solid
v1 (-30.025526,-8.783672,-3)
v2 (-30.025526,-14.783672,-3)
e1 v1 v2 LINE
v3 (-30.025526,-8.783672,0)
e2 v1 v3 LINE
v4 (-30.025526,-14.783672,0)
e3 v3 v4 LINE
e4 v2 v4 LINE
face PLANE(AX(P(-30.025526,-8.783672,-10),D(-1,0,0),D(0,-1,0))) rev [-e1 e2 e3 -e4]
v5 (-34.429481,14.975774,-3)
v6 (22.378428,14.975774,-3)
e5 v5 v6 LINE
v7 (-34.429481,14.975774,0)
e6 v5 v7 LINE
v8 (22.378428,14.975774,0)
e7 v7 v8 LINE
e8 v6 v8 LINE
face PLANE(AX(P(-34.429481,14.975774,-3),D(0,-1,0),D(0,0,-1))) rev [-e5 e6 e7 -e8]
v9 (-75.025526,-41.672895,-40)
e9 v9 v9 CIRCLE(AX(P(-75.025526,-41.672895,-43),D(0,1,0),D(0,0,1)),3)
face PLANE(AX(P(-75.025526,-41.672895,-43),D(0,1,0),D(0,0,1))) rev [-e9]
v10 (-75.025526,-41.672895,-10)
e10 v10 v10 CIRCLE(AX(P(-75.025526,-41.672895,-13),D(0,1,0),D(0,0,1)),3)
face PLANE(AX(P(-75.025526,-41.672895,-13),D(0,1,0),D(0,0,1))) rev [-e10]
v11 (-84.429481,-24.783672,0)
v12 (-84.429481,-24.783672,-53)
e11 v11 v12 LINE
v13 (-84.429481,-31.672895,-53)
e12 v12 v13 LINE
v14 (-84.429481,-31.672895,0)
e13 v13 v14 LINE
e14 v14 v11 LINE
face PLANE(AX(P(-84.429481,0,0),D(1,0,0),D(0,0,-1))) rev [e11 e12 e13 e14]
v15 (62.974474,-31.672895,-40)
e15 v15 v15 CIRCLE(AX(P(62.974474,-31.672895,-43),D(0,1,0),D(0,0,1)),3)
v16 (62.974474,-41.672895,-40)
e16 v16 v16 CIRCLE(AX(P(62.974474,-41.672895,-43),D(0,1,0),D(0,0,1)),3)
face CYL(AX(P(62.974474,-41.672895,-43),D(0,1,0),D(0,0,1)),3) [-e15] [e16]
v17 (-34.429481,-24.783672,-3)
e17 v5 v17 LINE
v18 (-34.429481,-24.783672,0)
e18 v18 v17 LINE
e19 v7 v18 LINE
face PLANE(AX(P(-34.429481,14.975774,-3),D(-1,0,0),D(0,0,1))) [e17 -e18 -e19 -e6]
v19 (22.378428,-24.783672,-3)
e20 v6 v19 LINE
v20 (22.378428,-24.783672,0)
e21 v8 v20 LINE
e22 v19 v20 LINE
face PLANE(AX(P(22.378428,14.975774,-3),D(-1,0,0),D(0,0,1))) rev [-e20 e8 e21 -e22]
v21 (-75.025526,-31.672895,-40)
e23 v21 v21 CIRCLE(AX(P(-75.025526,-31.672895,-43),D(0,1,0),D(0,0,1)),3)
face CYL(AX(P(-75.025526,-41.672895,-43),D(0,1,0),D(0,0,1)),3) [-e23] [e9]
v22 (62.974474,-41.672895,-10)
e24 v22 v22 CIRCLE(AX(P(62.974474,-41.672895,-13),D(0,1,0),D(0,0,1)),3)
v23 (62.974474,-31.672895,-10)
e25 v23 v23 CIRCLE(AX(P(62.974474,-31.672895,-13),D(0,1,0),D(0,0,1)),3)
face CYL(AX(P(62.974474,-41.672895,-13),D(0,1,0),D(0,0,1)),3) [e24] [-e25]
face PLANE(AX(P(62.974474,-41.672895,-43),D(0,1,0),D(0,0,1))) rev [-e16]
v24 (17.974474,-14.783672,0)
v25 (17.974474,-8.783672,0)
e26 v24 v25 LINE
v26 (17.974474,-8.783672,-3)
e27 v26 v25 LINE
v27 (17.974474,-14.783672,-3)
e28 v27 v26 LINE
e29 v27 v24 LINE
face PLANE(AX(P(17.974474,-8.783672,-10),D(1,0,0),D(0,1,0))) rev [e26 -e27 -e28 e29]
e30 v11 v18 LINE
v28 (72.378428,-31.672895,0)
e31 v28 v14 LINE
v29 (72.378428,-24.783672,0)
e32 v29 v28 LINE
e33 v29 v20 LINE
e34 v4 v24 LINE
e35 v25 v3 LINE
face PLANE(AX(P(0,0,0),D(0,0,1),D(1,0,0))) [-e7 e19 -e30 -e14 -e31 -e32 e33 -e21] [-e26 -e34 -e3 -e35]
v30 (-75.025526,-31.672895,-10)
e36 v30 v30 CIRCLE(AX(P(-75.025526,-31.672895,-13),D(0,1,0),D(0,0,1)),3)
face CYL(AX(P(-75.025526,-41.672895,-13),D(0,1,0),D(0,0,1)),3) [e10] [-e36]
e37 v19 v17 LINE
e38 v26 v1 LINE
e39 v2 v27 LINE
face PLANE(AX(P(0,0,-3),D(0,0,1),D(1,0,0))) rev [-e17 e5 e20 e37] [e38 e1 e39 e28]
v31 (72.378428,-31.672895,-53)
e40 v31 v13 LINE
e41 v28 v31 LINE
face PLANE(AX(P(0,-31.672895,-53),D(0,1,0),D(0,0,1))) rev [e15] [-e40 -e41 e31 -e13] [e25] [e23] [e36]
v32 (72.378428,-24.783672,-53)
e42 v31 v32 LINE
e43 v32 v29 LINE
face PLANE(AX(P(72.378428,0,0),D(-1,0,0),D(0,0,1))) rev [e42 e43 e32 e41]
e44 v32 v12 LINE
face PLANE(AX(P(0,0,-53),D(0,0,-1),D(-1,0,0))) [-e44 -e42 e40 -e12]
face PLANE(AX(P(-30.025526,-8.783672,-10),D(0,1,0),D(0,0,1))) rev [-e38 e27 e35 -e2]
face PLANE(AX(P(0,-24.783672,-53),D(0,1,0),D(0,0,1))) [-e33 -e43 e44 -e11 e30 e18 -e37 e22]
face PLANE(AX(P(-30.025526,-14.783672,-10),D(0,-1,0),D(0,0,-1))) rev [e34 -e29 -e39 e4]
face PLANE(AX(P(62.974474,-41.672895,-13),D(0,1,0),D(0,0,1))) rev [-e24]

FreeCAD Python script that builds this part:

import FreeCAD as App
import Part
import Sketcher


def add_polygon(sketch, points):
    """Adds a closed chain of lines whose ends are joined by coincident constraints."""
    first, n = sketch.GeometryCount, len(points)
    for a, b in zip(points, points[1:] + points[:1]):
        sketch.addGeometry(Part.LineSegment(App.Vector(*a, 0), App.Vector(*b, 0)), False)
    for i in range(n):
        sketch.addConstraint(Sketcher.Constraint("Coincident", first + i, 2, first + (i + 1) % n, 1))

doc = App.newDocument("Part")
body = doc.addObject("PartDesign::Body", "Body")

# Sketch on XY plane
sketch1 = body.newObject("Sketcher::SketchObject", "Sketch")
sketch1.AttachmentSupport = (doc.getObject("XY_Plane"), [""])
sketch1.MapMode = "FlatFace"
add_polygon(sketch1, [(-34, 15), (-34, -39), (22, -39), (22, 15)])  # lines 0-3
sketch1.addConstraint([
    Sketcher.Constraint("Vertical", 0),
    Sketcher.Constraint("Horizontal", 1),
    Sketcher.Constraint("Vertical", 2),
    Sketcher.Constraint("Horizontal", 3),
    Sketcher.Constraint("DistanceX", 1, 1, 1, 2, 56.807909),
    Sketcher.Constraint("DistanceY", 0, 2, -1, 1, 39.290498),
    Sketcher.Constraint("DistanceY", 0, 2, 0, 1, 54.266272),
    Sketcher.Constraint("DistanceX", 0, 2, -1, 1, 34.429481),
])
pad1 = body.newObject("PartDesign::Pad", "Pad")
pad1.Profile = sketch1
pad1.Length = 3
pad1.Reversed = True

# Sketch on XY plane
sketch2 = body.newObject("Sketcher::SketchObject", "Sketch001")
sketch2.AttachmentSupport = (doc.getObject("XY_Plane"), [""])
sketch2.MapMode = "FlatFace"
sketch2.addGeometry([
    Part.Circle(App.Vector(-26.1, 5.3, 0), App.Vector(0, 0, 1), 4.2),  # 0
    Part.Circle(App.Vector(-6.5, 5.3, 0), App.Vector(0, 0, 1), 4.2),  # 1
    Part.Circle(App.Vector(13.1, 5.3, 0), App.Vector(0, 0, 1), 4.2),  # 2
    Part.Circle(App.Vector(-26.1, -29.6, 0), App.Vector(0, 0, 1), 4.2),  # 3
    Part.Circle(App.Vector(-6.5, -29.6, 0), App.Vector(0, 0, 1), 4.2),  # 4
    Part.Circle(App.Vector(13.1, -29.6, 0), App.Vector(0, 0, 1), 4.2),  # 5
], False)
sketch2.addConstraint([
    Sketcher.Constraint("Equal", 0, 1),
    Sketcher.Constraint("Equal", 1, 2),
    Sketcher.Constraint("Equal", 2, 3),
    Sketcher.Constraint("Equal", 3, 4),
    Sketcher.Constraint("Equal", 4, 5),
    Sketcher.Constraint("Horizontal", 0, 3, 1, 3),
    Sketcher.Constraint("Horizontal", 1, 3, 2, 3),
    Sketcher.Constraint("Horizontal", 3, 3, 4, 3),
    Sketcher.Constraint("Horizontal", 4, 3, 5, 3),
    Sketcher.Constraint("Vertical", 0, 3, 3, 3),
    Sketcher.Constraint("Vertical", 1, 3, 4, 3),
    Sketcher.Constraint("Vertical", 2, 3, 5, 3),
    Sketcher.Constraint("Diameter", 0, 8.5),
    Sketcher.Constraint("DistanceX", 0, 3, 1, 3, 19.6),
    Sketcher.Constraint("DistanceX", 1, 3, 2, 3, 19.6),
    Sketcher.Constraint("DistanceY", 3, 3, 0, 3, 34.85),
    Sketcher.Constraint("DistanceX", 0, 3, -1, 1, 26.141197),
    Sketcher.Constraint("DistanceY", -1, 1, 0, 3, 5.267083),
])
pad2 = body.newObject("PartDesign::Pad", "Pad001")
pad2.Profile = sketch2
pad2.Length = 12

# Sketch on XY plane
sketch3 = body.newObject("Sketcher::SketchObject", "Sketch002")
sketch3.AttachmentSupport = (doc.getObject("XY_Plane"), [""])
sketch3.MapMode = "FlatFace"
add_polygon(sketch3, [(-30, -9), (-30, -15), (18, -15), (18, -9)])  # lines 0-3
sketch3.addConstraint([
    Sketcher.Constraint("Vertical", 0),
    Sketcher.Constraint("Horizontal", 1),
    Sketcher.Constraint("Vertical", 2),
    Sketcher.Constraint("Horizontal", 3),
    Sketcher.Constraint("DistanceX", 1, 1, 1, 2, 48.0),
    Sketcher.Constraint("DistanceY", 0, 2, 0, 1, 6.0),
    Sketcher.Constraint("DistanceY", 0, 2, -1, 1, 14.783672),
    Sketcher.Constraint("DistanceX", 0, 2, -1, 1, 30.025526),
])
pocket1 = body.newObject("PartDesign::Pocket", "Pocket")
pocket1.Profile = sketch3
pocket1.Length = 10

# Sketch on XY plane
sketch4 = body.newObject("Sketcher::SketchObject", "Sketch003")
sketch4.AttachmentSupport = (doc.getObject("XY_Plane"), [""])
sketch4.MapMode = "FlatFace"
sketch4.AttachmentOffset = App.Placement(App.Vector(0, 0, -3), App.Rotation())
add_polygon(sketch4, [(22, -25), (22, -32), (-34, -32), (-34, -25)])  # lines 0-3
sketch4.addConstraint([
    Sketcher.Constraint("Vertical", 0),
    Sketcher.Constraint("Horizontal", 1),
    Sketcher.Constraint("Vertical", 2),
    Sketcher.Constraint("Horizontal", 3),
    Sketcher.Constraint("DistanceX", 1, 2, 1, 1, 56.807909),
    Sketcher.Constraint("DistanceY", 0, 2, 0, 1, 6.889223),
    Sketcher.Constraint("DistanceX", 1, 2, -1, 1, 34.429481),
    Sketcher.Constraint("DistanceY", 2, 2, -1, 1, 24.783672),
])
pad3 = body.newObject("PartDesign::Pad", "Pad002")
pad3.Profile = sketch4
pad3.Length = 50
pad3.Reversed = True

# Sketch on YZ plane
sketch5 = body.newObject("Sketcher::SketchObject", "Sketch004")
sketch5.AttachmentSupport = (doc.getObject("YZ_Plane"), [""])
sketch5.MapMode = "FlatFace"
sketch5.AttachmentOffset = App.Placement(App.Vector(0, 0, 22.378428), App.Rotation())
add_polygon(sketch5, [(-25, 0), (-32, 0), (-32, -53), (-25, -53)])  # lines 0-3
sketch5.addConstraint([
    Sketcher.Constraint("Horizontal", 0),
    Sketcher.Constraint("Vertical", 1),
    Sketcher.Constraint("Horizontal", 2),
    Sketcher.Constraint("Vertical", 3),
    Sketcher.Constraint("PointOnObject", 0, 2, -1),
    Sketcher.Constraint("DistanceY", 1, 2, 1, 1, 53.0),
    Sketcher.Constraint("DistanceX", 0, 2, 0, 1, 6.889223),
    Sketcher.Constraint("DistanceX", 2, 2, -1, 1, 24.783672),
])
pad4 = body.newObject("PartDesign::Pad", "Pad003")
pad4.Profile = sketch5
pad4.Length = 50

# Sketch on YZ plane
sketch6 = body.newObject("Sketcher::SketchObject", "Sketch005")
sketch6.AttachmentSupport = (doc.getObject("YZ_Plane"), [""])
sketch6.MapMode = "FlatFace"
sketch6.AttachmentOffset = App.Placement(App.Vector(0, 0, -34.429481), App.Rotation())
add_polygon(sketch6, [(-25, -53), (-32, -53), (-32, 0), (-25, 0)])  # lines 0-3
sketch6.addConstraint([
    Sketcher.Constraint("Horizontal", 0),
    Sketcher.Constraint("Vertical", 1),
    Sketcher.Constraint("Horizontal", 2),
    Sketcher.Constraint("Vertical", 3),
    Sketcher.Constraint("PointOnObject", 1, 2, -1),
    Sketcher.Constraint("DistanceY", 1, 1, 1, 2, 53.0),
    Sketcher.Constraint("DistanceX", 0, 2, 0, 1, 6.889223),
    Sketcher.Constraint("DistanceX", 2, 2, -1, 1, 24.783672),
])
pad5 = body.newObject("PartDesign::Pad", "Pad004")
pad5.Profile = sketch6
pad5.Length = 50
pad5.Reversed = True

# Sketch on XY plane
sketch7 = body.newObject("Sketcher::SketchObject", "Sketch006")
sketch7.AttachmentSupport = (doc.getObject("XY_Plane"), [""])
sketch7.MapMode = "FlatFace"
add_polygon(sketch7, [(-42, 17), (-42, -43), (26, -43), (26, 17)])  # lines 0-3
sketch7.addConstraint([
    Sketcher.Constraint("Vertical", 0),
    Sketcher.Constraint("Horizontal", 1),
    Sketcher.Constraint("Vertical", 2),
    Sketcher.Constraint("Horizontal", 3),
    Sketcher.Constraint("DistanceX", 1, 1, 1, 2, 68.867558),
    Sketcher.Constraint("DistanceY", 0, 2, 0, 1, 60.331861),
    Sketcher.Constraint("DistanceY", -1, 1, 2, 2, 17.135599),
    Sketcher.Constraint("DistanceX", -1, 1, 1, 2, 26.468321),
])
pocket2 = body.newObject("PartDesign::Pocket", "Pocket001")
pocket2.Profile = sketch7
pocket2.Length = 26
pocket2.Reversed = True

# Sketch on XZ plane
sketch8 = body.newObject("Sketcher::SketchObject", "Sketch007")
sketch8.AttachmentSupport = (doc.getObject("XZ_Plane"), [""])
sketch8.MapMode = "FlatFace"
sketch8.AttachmentOffset = App.Placement(App.Vector(0, 0, 31.672895), App.Rotation())
add_polygon(sketch8, [(-80, 13), (-80, -41), (50, -41), (50, 13)])  # lines 0-3
sketch8.addConstraint([
    Sketcher.Constraint("Vertical", 0),
    Sketcher.Constraint("Horizontal", 1),
    Sketcher.Constraint("Vertical", 2),
    Sketcher.Constraint("Horizontal", 3),
    Sketcher.Constraint("DistanceX", 1, 1, 1, 2, 129.878395),
    Sketcher.Constraint("DistanceY", 0, 2, 0, 1, 53.736095),
    Sketcher.Constraint("DistanceX", 0, 2, -1, 1, 79.742913),
    Sketcher.Constraint("DistanceY", 0, 2, -1, 1, 40.846137),
])
pocket3 = body.newObject("PartDesign::Pocket", "Pocket002")
pocket3.Profile = sketch8
pocket3.Length = 22
pocket3.Reversed = True

# Sketch on XZ plane
sketch9 = body.newObject("Sketcher::SketchObject", "Sketch008")
sketch9.AttachmentSupport = (doc.getObject("XZ_Plane"), [""])
sketch9.MapMode = "FlatFace"
sketch9.AttachmentOffset = App.Placement(App.Vector(0, 0, 31.672895), App.Rotation())
sketch9.addGeometry([
    Part.Circle(App.Vector(-75, -43, 0), App.Vector(0, 0, 1), 3),
    Part.Circle(App.Vector(-75, -13, 0), App.Vector(0, 0, 1), 3),
    Part.Circle(App.Vector(63, -13, 0), App.Vector(0, 0, 1), 3),
    Part.Circle(App.Vector(63, -43, 0), App.Vector(0, 0, 1), 3),
], False)
sketch9.addConstraint([
    Sketcher.Constraint("Equal", 0, 1),
    Sketcher.Constraint("Equal", 1, 2),
    Sketcher.Constraint("Equal", 2, 3),
    Sketcher.Constraint("Horizontal", 1, 3, 2, 3),
    Sketcher.Constraint("Horizontal", 0, 3, 3, 3),
    Sketcher.Constraint("Vertical", 0, 3, 1, 3),
    Sketcher.Constraint("Vertical", 2, 3, 3, 3),
    Sketcher.Constraint("Diameter", 0, 6.0),
    Sketcher.Constraint("DistanceY", 0, 3, -1, 1, 43.0),
    Sketcher.Constraint("DistanceY", 1, 3, -1, 1, 13.0),
    Sketcher.Constraint("DistanceX", 1, 3, 2, 3, 138.0),
    Sketcher.Constraint("DistanceX", 0, 3, -1, 1, 75.025526),
])
pad6 = body.newObject("PartDesign::Pad", "Pad005")
pad6.Profile = sketch9
pad6.Length = 10

doc.recompute()
